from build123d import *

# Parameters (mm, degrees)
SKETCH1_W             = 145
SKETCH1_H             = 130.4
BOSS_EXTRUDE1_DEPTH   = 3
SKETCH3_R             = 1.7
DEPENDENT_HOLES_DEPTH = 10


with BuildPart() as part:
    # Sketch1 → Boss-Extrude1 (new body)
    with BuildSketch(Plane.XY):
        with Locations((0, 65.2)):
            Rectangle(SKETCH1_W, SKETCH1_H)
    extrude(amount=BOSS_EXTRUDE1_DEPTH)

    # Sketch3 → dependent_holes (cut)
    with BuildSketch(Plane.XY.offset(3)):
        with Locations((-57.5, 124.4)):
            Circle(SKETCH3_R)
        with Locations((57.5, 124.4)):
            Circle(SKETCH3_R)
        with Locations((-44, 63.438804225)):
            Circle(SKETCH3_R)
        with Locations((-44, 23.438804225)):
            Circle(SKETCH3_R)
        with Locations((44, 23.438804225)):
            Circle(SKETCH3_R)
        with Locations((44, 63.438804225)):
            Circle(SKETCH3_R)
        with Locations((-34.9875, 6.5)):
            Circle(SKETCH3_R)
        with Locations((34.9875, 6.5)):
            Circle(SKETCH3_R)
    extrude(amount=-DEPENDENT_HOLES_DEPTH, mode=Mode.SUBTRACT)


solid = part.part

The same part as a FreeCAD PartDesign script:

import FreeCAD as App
import Part
import Sketcher
Q = App.Units.Quantity


def add_polygon(sketch, points):
    """Adds a closed chain of lines whose ends are joined by coincident constraints."""
    first, n = sketch.GeometryCount, len(points)
    for a, b in zip(points, points[1:] + points[:1]):
        sketch.addGeometry(Part.LineSegment(App.Vector(*a, 0), App.Vector(*b, 0)), False)
    for i in range(n):
        sketch.addConstraint(Sketcher.Constraint("Coincident", first + i, 2, first + (i + 1) % n, 1))

doc = App.newDocument("Part")
body = doc.addObject("PartDesign::Body", "Body")

sketch1 = doc.addObject("Sketcher::SketchObject", "Sketch")
body.addObject(sketch1)
sketch1.AttachmentSupport = (doc.XY_Plane, [""])
sketch1.MapMode = "FlatFace"
add_polygon(sketch1, [(-72.5, 130.4), (-72.5, 0), (72.5, 0), (72.5, 130.4)])
sketch1.addConstraint([
    Sketcher.Constraint("Vertical", 0),
    Sketcher.Constraint("Horizontal", 1),
    Sketcher.Constraint("Vertical", 2),
    Sketcher.Constraint("Horizontal", 3),
    Sketcher.Constraint("Symmetric", 0, 2, 1, 2, -1, 1),
    Sketcher.Constraint("DistanceX", 1, 1, 1, 2, Q("145 mm")),
    Sketcher.Constraint("DistanceY", 0, 2, 0, 1, Q("130.4 mm")),
])
pad1 = doc.addObject("PartDesign::Pad", "Pad")
body.addObject(pad1)
pad1.Profile = sketch1
pad1.Length = 3

sketch2 = doc.addObject("Sketcher::SketchObject", "Sketch001")
body.addObject(sketch2)
sketch2.AttachmentSupport = (doc.XY_Plane, [""])
sketch2.MapMode = "FlatFace"
sketch2.AttachmentOffset = App.Placement(App.Vector(0, 0, 3), App.Rotation())
sketch2.addGeometry([
    Part.Circle(App.Vector(-57.5, 124.4, 0), App.Vector(0, 0, 1), 1.7),
    Part.Circle(App.Vector(57.5, 124.4, 0), App.Vector(0, 0, 1), 1.7),
    Part.Circle(App.Vector(-44, 63.438804, 0), App.Vector(0, 0, 1), 1.7),
    Part.Circle(App.Vector(-44, 23.438804, 0), App.Vector(0, 0, 1), 1.7),
    Part.Circle(App.Vector(44, 23.438804, 0), App.Vector(0, 0, 1), 1.7),
    Part.Circle(App.Vector(44, 63.438804, 0), App.Vector(0, 0, 1), 1.7),
    Part.Circle(App.Vector(-34.9875, 6.5, 0), App.Vector(0, 0, 1), 1.7),
    Part.Circle(App.Vector(34.9875, 6.5, 0), App.Vector(0, 0, 1), 1.7),
], False)
sketch2.addConstraint([
    Sketcher.Constraint("Equal", 0, 1),
    Sketcher.Constraint("Equal", 1, 2),
    Sketcher.Constraint("Equal", 2, 3),
    Sketcher.Constraint("Equal", 3, 4),
    Sketcher.Constraint("Equal", 4, 5),
    Sketcher.Constraint("Equal", 5, 6),
    Sketcher.Constraint("Equal", 6, 7),
    Sketcher.Constraint("Symmetric", 0, 3, 1, 3, -2),
    Sketcher.Constraint("Symmetric", 3, 3, 4, 3, -2),
    Sketcher.Constraint("Symmetric", 2, 3, 5, 3, -2),
    Sketcher.Constraint("Symmetric", 6, 3, 7, 3, -2),
    Sketcher.Constraint("Vertical", 2, 3, 3, 3),
    Sketcher.Constraint("Diameter", 0, Q("3.4 mm")),
    Sketcher.Constraint("DistanceX", 2, 3, -1, 1, Q("44 mm")),
    Sketcher.Constraint("DistanceX", 0, 3, 1, 3, Q("115 mm")),
    Sketcher.Constraint("DistanceY", 3, 3, 2, 3, Q("40 mm")),
    Sketcher.Constraint("DistanceY", -1, 1, 0, 3, Q("124.4 mm")),
    Sketcher.Constraint("DistanceY", -1, 1, 6, 3, Q("6.5 mm")),
    Sketcher.Constraint("DistanceX", 6, 3, 7, 3, Q("69.975 mm")),
    Sketcher.Constraint("DistanceY", -1, 1, 2, 3, Q("63.438804 mm")),
])
pocket1 = doc.addObject("PartDesign::Pocket", "Pocket")
body.addObject(pocket1)
pocket1.Profile = sketch2
pocket1.Length = 10

doc.recompute()
